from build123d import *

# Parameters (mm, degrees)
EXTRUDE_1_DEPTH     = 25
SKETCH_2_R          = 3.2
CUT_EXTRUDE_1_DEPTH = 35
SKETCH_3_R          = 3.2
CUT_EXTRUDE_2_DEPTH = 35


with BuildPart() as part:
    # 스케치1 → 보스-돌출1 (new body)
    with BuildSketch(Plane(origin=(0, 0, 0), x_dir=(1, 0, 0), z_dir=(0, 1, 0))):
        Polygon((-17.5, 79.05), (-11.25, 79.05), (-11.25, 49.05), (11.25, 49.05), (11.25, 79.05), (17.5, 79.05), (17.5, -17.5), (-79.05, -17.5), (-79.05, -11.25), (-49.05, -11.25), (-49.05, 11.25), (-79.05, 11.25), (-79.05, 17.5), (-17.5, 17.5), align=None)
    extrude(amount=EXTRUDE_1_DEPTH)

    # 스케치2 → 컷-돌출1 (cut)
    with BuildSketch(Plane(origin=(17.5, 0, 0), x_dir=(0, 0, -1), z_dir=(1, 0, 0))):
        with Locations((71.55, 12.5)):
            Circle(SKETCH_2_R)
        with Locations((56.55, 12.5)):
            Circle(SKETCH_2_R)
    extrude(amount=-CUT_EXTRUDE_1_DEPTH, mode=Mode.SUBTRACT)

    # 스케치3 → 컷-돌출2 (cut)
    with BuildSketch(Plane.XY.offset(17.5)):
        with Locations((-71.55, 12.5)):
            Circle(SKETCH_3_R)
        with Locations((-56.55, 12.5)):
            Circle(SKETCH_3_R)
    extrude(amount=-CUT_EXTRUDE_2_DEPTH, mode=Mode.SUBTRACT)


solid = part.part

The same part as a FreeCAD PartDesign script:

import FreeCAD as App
import Part
import Sketcher
from FreeCAD import Vector


def add_polygon(sketch, points):
    """Adds a closed chain of lines whose ends are joined by coincident constraints."""
    first, n = sketch.GeometryCount, len(points)
    for a, b in zip(points, points[1:] + points[:1]):
        sketch.addGeometry(Part.LineSegment(App.Vector(*a, 0), App.Vector(*b, 0)), False)
    for i in range(n):
        sketch.addConstraint(Sketcher.Constraint("Coincident", first + i, 2, first + (i + 1) % n, 1))

doc = App.newDocument("Part")
body = doc.addObject("PartDesign::Body", "Body")

# Sketch on XZ plane
sketch1 = body.newObject("Sketcher::SketchObject", "Sketch")
sketch1.AttachmentSupport = (doc.getObject("XZ_Plane"), [""])
sketch1.MapMode = "FlatFace"
add_polygon(sketch1, [(-11, -79), (-18, -79), (-18, -18), (-79, -18), (-79, -11), (-49, -11), (-49, 11), (-79, 11), (-79, 18), (18, 18), (18, -79), (11, -79), (11, -49), (-11, -49)])  # lines 0-13
sketch1.addConstraint(Sketcher.Constraint("Horizontal", 0))
sketch1.addConstraint(Sketcher.Constraint("Vertical", 1))
sketch1.addConstraint(Sketcher.Constraint("Horizontal", 2))
sketch1.addConstraint(Sketcher.Constraint("Vertical", 3))
sketch1.addConstraint(Sketcher.Constraint("Horizontal", 4))
sketch1.addConstraint(Sketcher.Constraint("Vertical", 5))
sketch1.addConstraint(Sketcher.Constraint("Horizontal", 6))
sketch1.addConstraint(Sketcher.Constraint("Vertical", 7))
sketch1.addConstraint(Sketcher.Constraint("Horizontal", 8))
sketch1.addConstraint(Sketcher.Constraint("Vertical", 9))
sketch1.addConstraint(Sketcher.Constraint("Horizontal", 10))
sketch1.addConstraint(Sketcher.Constraint("Vertical", 11))
sketch1.addConstraint(Sketcher.Constraint("Horizontal", 12))
sketch1.addConstraint(Sketcher.Constraint("Vertical", 13))
sketch1.addConstraint(Sketcher.Constraint("Symmetric", 1, 2, 8, 2, -1, 1))
sketch1.addConstraint(Sketcher.Constraint("Symmetric", 10, 2, 13, 2, -2))
sketch1.addConstraint(Sketcher.Constraint("Symmetric", 3, 2, 6, 2, -1))
sketch1.addConstraint(Sketcher.Constraint("Equal", 2, 1))
sketch1.addConstraint(Sketcher.Constraint("Equal", 10, 3))
sketch1.addConstraint(Sketcher.Constraint("Equal", 12, 5))
sketch1.addConstraint(Sketcher.Constraint("Equal", 6, 11))
sketch1.addConstraint(Sketcher.Constraint("DistanceX", 4, 1, 4, 2, 30.0))
sketch1.addConstraint(Sketcher.Constraint("DistanceX", 12, 2, 12, 1, 22.5))
sketch1.addConstraint(Sketcher.Constraint("DistanceY", 2, 2, 7, 2, 35.0))
sketch1.addConstraint(Sketcher.Constraint("DistanceX", 2, 2, 2, 1, 61.55))
pad1 = body.newObject("PartDesign::Pad", "Pad")
pad1.Profile = sketch1
pad1.Length = 25
pad1.Reversed = True

# Sketch on YZ plane
sketch2 = body.newObject("Sketcher::SketchObject", "Sketch001")
sketch2.AttachmentSupport = (doc.getObject("YZ_Plane"), [""])
sketch2.MapMode = "FlatFace"
sketch2.AttachmentOffset = App.Placement(Vector(0, 0, 17.5), App.Rotation())
sketch2.addGeometry(Part.Circle(Vector(12.5, -71.5, 0), Vector(0, 0, 1), 3.2), False)
sketch2.addGeometry(Part.Circle(Vector(12.5, -56.5, 0), Vector(0, 0, 1), 3.2), False)
sketch2.addConstraint(Sketcher.Constraint("Equal", 0, 1))
sketch2.addConstraint(Sketcher.Constraint("Vertical", 0, 3, 1, 3))
sketch2.addConstraint(Sketcher.Constraint("Diameter", 0, 6.4))
sketch2.addConstraint(Sketcher.Constraint("DistanceY", 0, 3, 1, 3, 15.0))
sketch2.addConstraint(Sketcher.Constraint("DistanceX", -1, 1, 0, 3, 12.5))
sketch2.addConstraint(Sketcher.Constraint("DistanceY", 0, 3, -1, 1, 71.55))
pocket1 = body.newObject("PartDesign::Pocket", "Pocket")
pocket1.Profile = sketch2
pocket1.Length = 35

# Sketch on XY plane
sketch3 = body.newObject("Sketcher::SketchObject", "Sketch002")
sketch3.AttachmentSupport = (doc.getObject("XY_Plane"), [""])
sketch3.MapMode = "FlatFace"
sketch3.AttachmentOffset = App.Placement(Vector(0, 0, 17.5), App.Rotation())
sketch3.addGeometry(Part.Circle(Vector(-71.5, 12.5, 0), Vector(0, 0, 1), 3.2), False)
sketch3.addGeometry(Part.Circle(Vector(-56.5, 12.5, 0), Vector(0, 0, 1), 3.2), False)
sketch3.addConstraint(Sketcher.Constraint("Equal", 0, 1))
sketch3.addConstraint(Sketcher.Constraint("Horizontal", 0, 3, 1, 3))
sketch3.addConstraint(Sketcher.Constraint("Diameter", 0, 6.4))
sketch3.addConstraint(Sketcher.Constraint("DistanceX", 0, 3, 1, 3, 15.0))
sketch3.addConstraint(Sketcher.Constraint("DistanceY", -1, 1, 0, 3, 12.5))
sketch3.addConstraint(Sketcher.Constraint("DistanceX", 0, 3, -1, 1, 71.55))
pocket2 = body.newObject("PartDesign::Pocket", "Pocket001")
pocket2.Profile = sketch3
pocket2.Length = 35

doc.recompute()
